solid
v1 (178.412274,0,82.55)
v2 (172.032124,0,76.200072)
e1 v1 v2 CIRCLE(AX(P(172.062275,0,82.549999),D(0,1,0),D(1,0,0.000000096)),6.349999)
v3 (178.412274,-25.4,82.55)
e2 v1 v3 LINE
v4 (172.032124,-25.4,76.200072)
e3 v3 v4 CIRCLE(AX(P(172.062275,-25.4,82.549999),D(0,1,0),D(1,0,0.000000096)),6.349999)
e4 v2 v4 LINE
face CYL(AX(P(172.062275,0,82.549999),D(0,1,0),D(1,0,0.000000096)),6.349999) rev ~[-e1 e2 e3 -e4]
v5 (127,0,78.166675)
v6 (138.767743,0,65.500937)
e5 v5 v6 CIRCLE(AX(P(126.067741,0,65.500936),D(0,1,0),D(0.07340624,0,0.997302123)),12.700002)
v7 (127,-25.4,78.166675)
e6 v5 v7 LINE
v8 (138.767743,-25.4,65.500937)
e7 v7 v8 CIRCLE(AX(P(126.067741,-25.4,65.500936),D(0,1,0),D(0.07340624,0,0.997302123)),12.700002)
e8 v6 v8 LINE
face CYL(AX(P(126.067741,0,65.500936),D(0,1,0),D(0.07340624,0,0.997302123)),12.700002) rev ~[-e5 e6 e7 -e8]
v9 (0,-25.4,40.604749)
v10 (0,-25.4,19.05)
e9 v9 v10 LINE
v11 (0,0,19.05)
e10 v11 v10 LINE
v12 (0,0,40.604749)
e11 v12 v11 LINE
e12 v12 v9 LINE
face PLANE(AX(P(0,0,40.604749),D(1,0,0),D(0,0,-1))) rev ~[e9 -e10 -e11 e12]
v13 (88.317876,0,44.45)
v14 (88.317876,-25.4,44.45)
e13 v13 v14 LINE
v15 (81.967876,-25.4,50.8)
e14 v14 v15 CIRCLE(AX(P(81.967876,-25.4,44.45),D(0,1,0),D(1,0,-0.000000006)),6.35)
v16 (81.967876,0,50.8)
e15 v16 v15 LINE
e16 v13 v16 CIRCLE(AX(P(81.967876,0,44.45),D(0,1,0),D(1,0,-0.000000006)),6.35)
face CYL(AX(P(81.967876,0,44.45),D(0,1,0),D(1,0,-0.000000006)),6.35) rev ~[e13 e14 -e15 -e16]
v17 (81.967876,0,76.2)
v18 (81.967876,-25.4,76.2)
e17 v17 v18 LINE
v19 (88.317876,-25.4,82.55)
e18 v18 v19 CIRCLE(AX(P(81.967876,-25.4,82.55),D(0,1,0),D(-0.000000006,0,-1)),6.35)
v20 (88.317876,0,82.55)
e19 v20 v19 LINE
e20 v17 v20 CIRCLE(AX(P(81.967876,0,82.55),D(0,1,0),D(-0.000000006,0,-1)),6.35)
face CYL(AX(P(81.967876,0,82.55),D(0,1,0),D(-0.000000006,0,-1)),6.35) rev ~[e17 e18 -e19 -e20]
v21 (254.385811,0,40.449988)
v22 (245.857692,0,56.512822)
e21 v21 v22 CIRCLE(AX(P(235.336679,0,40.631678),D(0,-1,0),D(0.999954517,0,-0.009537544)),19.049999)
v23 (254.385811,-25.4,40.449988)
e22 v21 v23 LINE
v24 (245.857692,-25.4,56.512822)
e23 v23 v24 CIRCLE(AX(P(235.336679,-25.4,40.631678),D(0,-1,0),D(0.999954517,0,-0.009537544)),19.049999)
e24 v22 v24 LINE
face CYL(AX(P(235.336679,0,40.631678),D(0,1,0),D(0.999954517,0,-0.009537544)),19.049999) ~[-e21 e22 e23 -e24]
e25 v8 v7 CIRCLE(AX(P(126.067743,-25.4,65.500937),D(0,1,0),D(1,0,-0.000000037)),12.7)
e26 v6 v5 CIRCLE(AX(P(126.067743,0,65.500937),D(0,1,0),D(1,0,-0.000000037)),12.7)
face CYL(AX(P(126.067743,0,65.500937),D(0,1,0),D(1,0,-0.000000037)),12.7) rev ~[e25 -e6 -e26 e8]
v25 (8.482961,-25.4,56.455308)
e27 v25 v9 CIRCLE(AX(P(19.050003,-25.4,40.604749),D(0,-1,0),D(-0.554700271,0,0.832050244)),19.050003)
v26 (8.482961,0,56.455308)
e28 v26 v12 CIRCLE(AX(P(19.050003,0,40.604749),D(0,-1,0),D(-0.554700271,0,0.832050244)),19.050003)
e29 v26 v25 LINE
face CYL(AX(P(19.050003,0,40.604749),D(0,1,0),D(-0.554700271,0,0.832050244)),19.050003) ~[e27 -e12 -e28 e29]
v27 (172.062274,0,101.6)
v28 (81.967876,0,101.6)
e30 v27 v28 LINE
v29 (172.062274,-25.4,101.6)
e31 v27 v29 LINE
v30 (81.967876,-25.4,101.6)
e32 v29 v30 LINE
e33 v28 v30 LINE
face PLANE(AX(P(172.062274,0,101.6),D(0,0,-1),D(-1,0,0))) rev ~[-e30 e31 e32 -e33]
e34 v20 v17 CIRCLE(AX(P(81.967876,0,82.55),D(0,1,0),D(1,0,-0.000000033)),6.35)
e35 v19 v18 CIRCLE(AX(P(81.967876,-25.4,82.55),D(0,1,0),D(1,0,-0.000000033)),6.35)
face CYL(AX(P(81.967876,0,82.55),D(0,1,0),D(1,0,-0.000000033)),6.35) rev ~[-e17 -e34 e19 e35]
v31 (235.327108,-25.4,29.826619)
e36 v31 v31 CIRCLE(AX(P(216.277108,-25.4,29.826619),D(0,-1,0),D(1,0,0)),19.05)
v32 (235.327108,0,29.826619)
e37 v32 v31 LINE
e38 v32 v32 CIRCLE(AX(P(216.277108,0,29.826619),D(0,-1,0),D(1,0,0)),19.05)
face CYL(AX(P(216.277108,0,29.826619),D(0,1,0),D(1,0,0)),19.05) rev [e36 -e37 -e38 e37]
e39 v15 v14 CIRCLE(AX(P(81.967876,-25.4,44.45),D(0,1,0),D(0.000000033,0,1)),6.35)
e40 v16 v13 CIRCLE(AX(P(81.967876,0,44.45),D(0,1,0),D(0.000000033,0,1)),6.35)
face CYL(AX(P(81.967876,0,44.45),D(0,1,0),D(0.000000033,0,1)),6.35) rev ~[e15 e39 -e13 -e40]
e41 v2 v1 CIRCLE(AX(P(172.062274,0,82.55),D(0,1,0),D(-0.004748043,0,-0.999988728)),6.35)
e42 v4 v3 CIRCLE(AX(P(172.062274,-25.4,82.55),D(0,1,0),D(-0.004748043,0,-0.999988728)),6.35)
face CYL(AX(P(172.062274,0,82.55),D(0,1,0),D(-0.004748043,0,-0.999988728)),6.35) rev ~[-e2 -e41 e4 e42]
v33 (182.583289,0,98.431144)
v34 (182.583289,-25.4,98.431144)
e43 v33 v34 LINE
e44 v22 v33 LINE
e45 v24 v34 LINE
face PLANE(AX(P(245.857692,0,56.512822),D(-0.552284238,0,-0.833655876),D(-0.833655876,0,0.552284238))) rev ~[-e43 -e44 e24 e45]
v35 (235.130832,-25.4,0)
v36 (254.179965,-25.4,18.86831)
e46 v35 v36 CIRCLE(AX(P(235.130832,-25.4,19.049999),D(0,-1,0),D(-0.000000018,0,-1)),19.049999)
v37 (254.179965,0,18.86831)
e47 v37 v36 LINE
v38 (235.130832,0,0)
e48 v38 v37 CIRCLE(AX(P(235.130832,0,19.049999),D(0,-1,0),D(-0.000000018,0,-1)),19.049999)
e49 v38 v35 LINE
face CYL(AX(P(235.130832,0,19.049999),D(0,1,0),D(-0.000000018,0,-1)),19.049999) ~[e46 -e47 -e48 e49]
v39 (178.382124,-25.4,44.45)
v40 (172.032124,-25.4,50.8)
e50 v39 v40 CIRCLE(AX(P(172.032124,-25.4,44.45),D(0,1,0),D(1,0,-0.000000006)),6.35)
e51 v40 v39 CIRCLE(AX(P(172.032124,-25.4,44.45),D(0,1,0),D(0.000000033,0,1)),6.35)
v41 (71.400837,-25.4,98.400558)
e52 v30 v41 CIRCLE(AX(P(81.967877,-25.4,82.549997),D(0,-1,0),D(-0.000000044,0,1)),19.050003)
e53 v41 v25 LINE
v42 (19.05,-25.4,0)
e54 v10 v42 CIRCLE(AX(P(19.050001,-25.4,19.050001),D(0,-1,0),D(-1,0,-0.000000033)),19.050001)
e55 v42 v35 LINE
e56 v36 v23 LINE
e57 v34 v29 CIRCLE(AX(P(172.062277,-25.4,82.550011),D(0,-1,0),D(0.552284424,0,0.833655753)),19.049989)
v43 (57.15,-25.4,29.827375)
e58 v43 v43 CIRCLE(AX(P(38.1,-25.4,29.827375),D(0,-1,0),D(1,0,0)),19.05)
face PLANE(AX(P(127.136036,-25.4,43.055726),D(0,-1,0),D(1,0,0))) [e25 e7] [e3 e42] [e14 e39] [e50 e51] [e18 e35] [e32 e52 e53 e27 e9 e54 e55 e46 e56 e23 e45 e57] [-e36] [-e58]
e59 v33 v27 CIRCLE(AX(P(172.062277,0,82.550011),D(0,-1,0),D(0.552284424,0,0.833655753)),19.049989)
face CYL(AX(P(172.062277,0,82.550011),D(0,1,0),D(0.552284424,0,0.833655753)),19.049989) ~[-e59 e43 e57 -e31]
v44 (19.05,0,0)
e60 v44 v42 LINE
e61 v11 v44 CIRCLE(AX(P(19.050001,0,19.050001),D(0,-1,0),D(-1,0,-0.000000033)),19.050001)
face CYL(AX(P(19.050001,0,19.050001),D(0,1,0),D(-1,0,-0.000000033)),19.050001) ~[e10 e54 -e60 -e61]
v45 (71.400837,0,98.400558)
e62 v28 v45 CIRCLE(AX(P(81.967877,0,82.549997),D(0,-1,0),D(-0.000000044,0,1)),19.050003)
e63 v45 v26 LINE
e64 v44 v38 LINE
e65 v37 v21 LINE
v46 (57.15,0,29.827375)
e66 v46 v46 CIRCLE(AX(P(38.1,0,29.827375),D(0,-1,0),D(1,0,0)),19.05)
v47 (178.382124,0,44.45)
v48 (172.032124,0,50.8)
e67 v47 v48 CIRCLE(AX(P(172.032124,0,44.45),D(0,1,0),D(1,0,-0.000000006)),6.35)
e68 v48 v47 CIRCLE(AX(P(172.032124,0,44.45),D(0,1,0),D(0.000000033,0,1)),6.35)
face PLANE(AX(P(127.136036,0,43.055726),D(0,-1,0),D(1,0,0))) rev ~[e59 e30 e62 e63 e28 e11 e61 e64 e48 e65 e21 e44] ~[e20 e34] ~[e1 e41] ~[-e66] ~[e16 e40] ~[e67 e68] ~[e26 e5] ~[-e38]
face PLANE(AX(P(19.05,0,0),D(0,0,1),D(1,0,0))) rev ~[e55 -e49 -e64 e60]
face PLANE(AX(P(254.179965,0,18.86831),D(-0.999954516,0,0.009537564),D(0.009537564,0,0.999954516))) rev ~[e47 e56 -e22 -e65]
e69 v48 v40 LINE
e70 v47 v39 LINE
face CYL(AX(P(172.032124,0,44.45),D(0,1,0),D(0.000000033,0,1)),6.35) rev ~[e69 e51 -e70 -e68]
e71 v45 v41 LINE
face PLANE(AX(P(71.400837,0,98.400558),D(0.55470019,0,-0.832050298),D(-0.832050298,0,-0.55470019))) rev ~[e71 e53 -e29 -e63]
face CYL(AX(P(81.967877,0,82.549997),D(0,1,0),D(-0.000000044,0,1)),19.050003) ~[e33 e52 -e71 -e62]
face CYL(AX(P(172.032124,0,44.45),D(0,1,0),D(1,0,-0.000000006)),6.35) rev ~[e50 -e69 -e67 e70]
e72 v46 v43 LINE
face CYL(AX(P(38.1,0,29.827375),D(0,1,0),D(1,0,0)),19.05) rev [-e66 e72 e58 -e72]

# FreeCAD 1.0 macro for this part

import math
import FreeCAD as App
import Part
import Sketcher

V = App.Vector
Q = App.Units.Quantity

doc = App.newDocument("Part")
body = doc.addObject("PartDesign::Body", "Body")

# Sketch on XZ plane
sketch1 = body.newObject("Sketcher::SketchObject", "Sketch")
sketch1.AttachmentSupport = (doc.getObject("XZ_Plane"), [""])
sketch1.MapMode = "FlatFace"
sketch1.addGeometry([
    Part.ArcOfCircle(Part.Circle(V(19, 19, 0), V(0, 0, 1), 19), math.radians(-180), math.radians(-90)),  # 0
    Part.LineSegment(V(19, 0, 0), V(235, 0, 0)),  # 1
    Part.ArcOfCircle(Part.Circle(V(235, 19, 0), V(0, 0, 1), 19), math.radians(-90), math.radians(-1)),  # 2
    Part.LineSegment(V(254, 19, 0), V(254, 40, 0)),  # 3
    Part.ArcOfCircle(Part.Circle(V(235, 41, 0), V(0, 0, 1), 19), math.radians(-1), math.radians(56)),  # 4
    Part.LineSegment(V(246, 57, 0), V(183, 98, 0)),  # 5
    Part.ArcOfCircle(Part.Circle(V(172, 83, 0), V(0, 0, 1), 19), math.radians(56), math.radians(90)),  # 6
    Part.LineSegment(V(172, 102, 0), V(82, 102, 0)),  # 7
    Part.ArcOfCircle(Part.Circle(V(82, 83, 0), V(0, 0, 1), 19), math.radians(90), math.radians(124)),  # 8
    Part.LineSegment(V(71, 98, 0), V(8, 56, 0)),  # 9
    Part.ArcOfCircle(Part.Circle(V(19, 41, 0), V(0, 0, 1), 19), math.radians(124), math.radians(180)),  # 10
    Part.LineSegment(V(0, 41, 0), V(0, 19, 0)),  # 11
    Part.Circle(V(38, 30, 0), V(0, 0, 1), 19),  # 12
    Part.ArcOfCircle(Part.Circle(V(82, 44, 0), V(0, 0, 1), 6), math.radians(0), math.radians(90)),  # 13
    Part.ArcOfCircle(Part.Circle(V(82, 44, 0), V(0, 0, 1), 6), math.radians(90), math.radians(360)),  # 14
    Part.Circle(V(216, 30, 0), V(0, 0, 1), 19),  # 15
    Part.ArcOfCircle(Part.Circle(V(172, 44, 0), V(0, 0, 1), 6), math.radians(0), math.radians(90)),  # 16
    Part.ArcOfCircle(Part.Circle(V(172, 44, 0), V(0, 0, 1), 6), math.radians(90), math.radians(360)),  # 17
    Part.ArcOfCircle(Part.Circle(V(126, 66, 0), V(0, 0, 1), 13), math.radians(0), math.radians(86)),  # 18
    Part.ArcOfCircle(Part.Circle(V(126, 66, 0), V(0, 0, 1), 13), math.radians(86), math.radians(360)),  # 19
    Part.ArcOfCircle(Part.Circle(V(82, 83, 0), V(0, 0, 1), 6), math.radians(0), math.radians(270)),  # 20
    Part.ArcOfCircle(Part.Circle(V(82, 83, 0), V(0, 0, 1), 6), math.radians(-90), math.radians(0)),  # 21
    Part.ArcOfCircle(Part.Circle(V(172, 83, 0), V(0, 0, 1), 6), math.radians(0), math.radians(270)),  # 22
    Part.ArcOfCircle(Part.Circle(V(172, 83, 0), V(0, 0, 1), 6), math.radians(-90), math.radians(0)),  # 23
], False)
sketch1.addConstraint([
    Sketcher.Constraint("Tangent", 0, 2, 1, 1),
    Sketcher.Constraint("Tangent", 1, 2, 2, 1),
    Sketcher.Constraint("Tangent", 2, 2, 3, 1),
    Sketcher.Constraint("Tangent", 3, 2, 4, 1),
    Sketcher.Constraint("Tangent", 4, 2, 5, 1),
    Sketcher.Constraint("Tangent", 5, 2, 6, 1),
    Sketcher.Constraint("Tangent", 6, 2, 7, 1),
    Sketcher.Constraint("Tangent", 7, 2, 8, 1),
    Sketcher.Constraint("Tangent", 8, 2, 9, 1),
    Sketcher.Constraint("Tangent", 9, 2, 10, 1),
    Sketcher.Constraint("Tangent", 10, 2, 11, 1),
    Sketcher.Constraint("Tangent", 11, 2, 0, 1),
    Sketcher.Constraint("Tangent", 13, 1, 14, 2),
    Sketcher.Constraint("Coincident", 14, 1, 13, 2),
    Sketcher.Constraint("Tangent", 16, 1, 17, 2),
    Sketcher.Constraint("Coincident", 17, 1, 16, 2),
    Sketcher.Constraint("Tangent", 18, 1, 19, 2),
    Sketcher.Constraint("Coincident", 19, 1, 18, 2),
    Sketcher.Constraint("Tangent", 20, 1, 21, 2),
    Sketcher.Constraint("Coincident", 21, 1, 20, 2),
    Sketcher.Constraint("Tangent", 22, 1, 23, 2),
    Sketcher.Constraint("Coincident", 23, 1, 22, 2),
    Sketcher.Constraint("Horizontal", 1),
    Sketcher.Constraint("Horizontal", 7),
    Sketcher.Constraint("Vertical", 11),
    Sketcher.Constraint("Coincident", 20, 3, 8, 3),
    Sketcher.Constraint("Equal", 0, 2),
    Sketcher.Constraint("Equal", 2, 4),
    Sketcher.Constraint("Equal", 8, 10),
    Sketcher.Constraint("Equal", 4, 12),
    Sketcher.Constraint("Equal", 12, 15),
    Sketcher.Constraint("Equal", 14, 16),
    Sketcher.Constraint("Equal", 17, 20),
    Sketcher.Constraint("Equal", 21, 22),
    Sketcher.Constraint("PointOnObject", 0, 2, -1),
    Sketcher.Constraint("PointOnObject", 10, 2, -2),
    Sketcher.Constraint("Horizontal", 14, 3, 16, 3),
    Sketcher.Constraint("Horizontal", 21, 3, 22, 3),
    Sketcher.Constraint("Horizontal", 17, 3, 13, 1),
    Sketcher.Constraint("Horizontal", 13, 1, 16, 1),
    Sketcher.Constraint("Horizontal", 19, 3, 18, 1),
    Sketcher.Constraint("Horizontal", 23, 3, 20, 1),
    Sketcher.Constraint("Horizontal", 20, 1, 22, 1),
    Sketcher.Constraint("Vertical", 8, 3, 13, 3),
    Sketcher.Constraint("Vertical", 6, 3, 23, 3),
    Sketcher.Constraint("Vertical", 7, 2, 14, 1),
    Sketcher.Constraint("Vertical", 16, 3, 17, 1),
    Sketcher.Constraint("Vertical", 14, 1, 21, 1),
    Sketcher.Constraint("Vertical", 17, 1, 23, 1),
    Sketcher.Constraint("Diameter", 12, Q("1.5 in")),
    Sketcher.Constraint("Radius", 18, Q("0.5000001 in")),
    Sketcher.Constraint("Radius", 8, Q("0.7500001 in")),
    Sketcher.Constraint("Radius", 13, Q("0.25 in")),
    Sketcher.Constraint("DistanceY", -1, 1, 6, 2, Q("4 in")),
    Sketcher.Constraint("DistanceY", -1, 1, 14, 1, Q("2 in")),
    Sketcher.Constraint("DistanceX", -1, 1, 19, 1, Q("5 in")),
    Sketcher.Constraint("DistanceX", -1, 1, 12, 3, Q("1.5 in")),
    Sketcher.Constraint("Radius", 6, 19.049989),
    Sketcher.Constraint("DistanceX", 7, 2, 7, 1, 90.094398),
    Sketcher.Constraint("DistanceX", 17, 3, 5, 2, Q("0.4154002 in")),
    Sketcher.Constraint("DistanceX", 1, 1, 1, 2, 216.080832),
    Sketcher.Constraint("DistanceY", 11, 2, 11, 1, 21.554749),
    Sketcher.Constraint("DistanceX", 6, 3, 4, 3, 63.274402),
    Sketcher.Constraint("Distance", 3, 21.58266),
    Sketcher.Constraint("DistanceX", -1, 1, 4, 3, 235.336679),
    Sketcher.Constraint("DistanceX", -1, 1, 15, 3, 216.277108),
    Sketcher.Constraint("DistanceY", -1, 1, 15, 3, 29.826619),
    Sketcher.Constraint("DistanceX", -1, 1, 18, 3, 126.067741),
    Sketcher.Constraint("DistanceY", 12, 3, 8, 3, 52.722622),
    Sketcher.Constraint("DistanceY", 18, 3, 8, 3, 17.049061),
])
pad1 = body.newObject("PartDesign::Pad", "Pad")
pad1.Profile = sketch1
pad1.Length = Q("1 in")

doc.recompute()
